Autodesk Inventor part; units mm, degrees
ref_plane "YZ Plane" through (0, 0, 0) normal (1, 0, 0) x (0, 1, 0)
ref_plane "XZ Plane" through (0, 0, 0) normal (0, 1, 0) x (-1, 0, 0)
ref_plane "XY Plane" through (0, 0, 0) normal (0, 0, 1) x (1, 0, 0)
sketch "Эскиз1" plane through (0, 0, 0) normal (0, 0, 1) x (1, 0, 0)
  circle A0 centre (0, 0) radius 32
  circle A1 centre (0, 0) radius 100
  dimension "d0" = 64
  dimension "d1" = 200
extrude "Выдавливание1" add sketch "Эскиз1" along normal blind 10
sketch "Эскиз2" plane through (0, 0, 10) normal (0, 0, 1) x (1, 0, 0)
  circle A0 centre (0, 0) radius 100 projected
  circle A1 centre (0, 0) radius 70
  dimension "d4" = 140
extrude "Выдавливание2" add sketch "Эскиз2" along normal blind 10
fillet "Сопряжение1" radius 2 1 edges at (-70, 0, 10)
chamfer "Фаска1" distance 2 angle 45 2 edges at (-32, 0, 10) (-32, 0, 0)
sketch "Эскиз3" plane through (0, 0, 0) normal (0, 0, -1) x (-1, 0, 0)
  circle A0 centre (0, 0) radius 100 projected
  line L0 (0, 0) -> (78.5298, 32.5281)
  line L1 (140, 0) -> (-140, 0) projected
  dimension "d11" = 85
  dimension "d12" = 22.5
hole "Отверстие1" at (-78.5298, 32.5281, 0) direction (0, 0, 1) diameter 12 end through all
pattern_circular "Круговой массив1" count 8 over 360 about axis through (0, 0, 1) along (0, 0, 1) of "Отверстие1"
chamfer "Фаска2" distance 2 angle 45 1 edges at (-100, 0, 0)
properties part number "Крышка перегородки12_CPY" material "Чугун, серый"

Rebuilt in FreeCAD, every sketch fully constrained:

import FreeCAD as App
import Part
import Sketcher

V = App.Vector
Q = App.Units.Quantity


def edges_at(feature, points):
    """Names of the edges that pass closest to the given points."""
    edges = feature.Shape.Edges
    near = lambda p: min(range(len(edges)), key=lambda i: edges[i].distToShape(Part.Vertex(*p))[0])
    return sorted({f"Edge{near(p) + 1}" for p in points})

doc = App.newDocument("Part")
body = doc.addObject("PartDesign::Body", "Body")

# Sketch on XY plane
sketch1 = body.newObject("Sketcher::SketchObject", "Sketch")
sketch1.AttachmentSupport = (doc.getObject("XY_Plane"), [""])
sketch1.MapMode = "FlatFace"
sketch1.addGeometry([
    Part.Circle(V(0, 0, 0), V(0, 0, 1), 100),
    Part.Circle(V(0, 0, 0), V(0, 0, 1), 32),
], False)
sketch1.addConstraint([
    Sketcher.Constraint("Coincident", 0, 3, -1, 1),
    Sketcher.Constraint("Coincident", 1, 3, -1, 1),
    Sketcher.Constraint("Diameter", 0, Q("200 mm")),
    Sketcher.Constraint("Diameter", 1, Q("64 mm")),
])
pad1 = body.newObject("PartDesign::Pad", "Pad")
pad1.Profile = sketch1
pad1.Length = 10

# Sketch on XY plane
sketch2 = body.newObject("Sketcher::SketchObject", "Sketch001")
sketch2.AttachmentSupport = (doc.getObject("XY_Plane"), [""])
sketch2.MapMode = "FlatFace"
sketch2.AttachmentOffset = App.Placement(V(0, 0, 10), App.Rotation())
sketch2.addGeometry([
    Part.Circle(V(0, 0, 0), V(0, 0, 1), 100),
    Part.Circle(V(0, 0, 0), V(0, 0, 1), 70),
], False)
sketch2.addConstraint([
    Sketcher.Constraint("Coincident", 0, 3, -1, 1),
    Sketcher.Constraint("Coincident", 1, 3, -1, 1),
    Sketcher.Constraint("Diameter", 1, Q("140 mm")),
    Sketcher.Constraint("Diameter", 0, Q("200 mm")),
])
pad2 = body.newObject("PartDesign::Pad", "Pad001")
pad2.Profile = sketch2
pad2.Length = 10
doc.recompute()

fillet = body.newObject("PartDesign::Fillet", "Fillet")
fillet.Base = (pad2, edges_at(pad2, [(-70, 0, 10)]))
fillet.Radius = 2
doc.recompute()

chamfer = body.newObject("PartDesign::Chamfer", "Chamfer")
chamfer.Base = (fillet, edges_at(fillet, [(-32, 0, 10), (-32, 0, 0)]))
chamfer.Size = 2

# Sketch on XY plane
sketch3 = body.newObject("Sketcher::SketchObject", "Sketch002")
sketch3.AttachmentSupport = (doc.getObject("XY_Plane"), [""])
sketch3.MapMode = "FlatFace"
sketch3.addGeometry(Part.Circle(V(-79, 33, 0), V(0, 0, 1), 6), False)
sketch3.addConstraint([
    Sketcher.Constraint("Diameter", 0, Q("12 mm")),
    Sketcher.Constraint("DistanceY", -1, 1, 0, 3, Q("32.528 mm")),
    Sketcher.Constraint("DistanceX", 0, 3, -1, 1, Q("78.5298 mm")),
])
doc.recompute()
hole = body.newObject("PartDesign::Hole", "Hole")
hole.Profile = sketch3
hole.ThreadType = "None"
hole.Diameter = 12
hole.DepthType = "ThroughAll"
hole.Reversed = True
doc.recompute()

polarpattern = body.newObject("PartDesign::PolarPattern", "PolarPattern")
polarpattern.Originals = [hole]
polarpattern.Axis = (doc.getObject("Z_Axis"), [""])
polarpattern.Angle = 360
polarpattern.Occurrences = 8
body.Tip = polarpattern
doc.recompute()

chamfer2 = body.newObject("PartDesign::Chamfer", "Chamfer001")
chamfer2.Base = (polarpattern, edges_at(polarpattern, [(-100, 0, 0)]))
chamfer2.Size = 2

doc.recompute()
